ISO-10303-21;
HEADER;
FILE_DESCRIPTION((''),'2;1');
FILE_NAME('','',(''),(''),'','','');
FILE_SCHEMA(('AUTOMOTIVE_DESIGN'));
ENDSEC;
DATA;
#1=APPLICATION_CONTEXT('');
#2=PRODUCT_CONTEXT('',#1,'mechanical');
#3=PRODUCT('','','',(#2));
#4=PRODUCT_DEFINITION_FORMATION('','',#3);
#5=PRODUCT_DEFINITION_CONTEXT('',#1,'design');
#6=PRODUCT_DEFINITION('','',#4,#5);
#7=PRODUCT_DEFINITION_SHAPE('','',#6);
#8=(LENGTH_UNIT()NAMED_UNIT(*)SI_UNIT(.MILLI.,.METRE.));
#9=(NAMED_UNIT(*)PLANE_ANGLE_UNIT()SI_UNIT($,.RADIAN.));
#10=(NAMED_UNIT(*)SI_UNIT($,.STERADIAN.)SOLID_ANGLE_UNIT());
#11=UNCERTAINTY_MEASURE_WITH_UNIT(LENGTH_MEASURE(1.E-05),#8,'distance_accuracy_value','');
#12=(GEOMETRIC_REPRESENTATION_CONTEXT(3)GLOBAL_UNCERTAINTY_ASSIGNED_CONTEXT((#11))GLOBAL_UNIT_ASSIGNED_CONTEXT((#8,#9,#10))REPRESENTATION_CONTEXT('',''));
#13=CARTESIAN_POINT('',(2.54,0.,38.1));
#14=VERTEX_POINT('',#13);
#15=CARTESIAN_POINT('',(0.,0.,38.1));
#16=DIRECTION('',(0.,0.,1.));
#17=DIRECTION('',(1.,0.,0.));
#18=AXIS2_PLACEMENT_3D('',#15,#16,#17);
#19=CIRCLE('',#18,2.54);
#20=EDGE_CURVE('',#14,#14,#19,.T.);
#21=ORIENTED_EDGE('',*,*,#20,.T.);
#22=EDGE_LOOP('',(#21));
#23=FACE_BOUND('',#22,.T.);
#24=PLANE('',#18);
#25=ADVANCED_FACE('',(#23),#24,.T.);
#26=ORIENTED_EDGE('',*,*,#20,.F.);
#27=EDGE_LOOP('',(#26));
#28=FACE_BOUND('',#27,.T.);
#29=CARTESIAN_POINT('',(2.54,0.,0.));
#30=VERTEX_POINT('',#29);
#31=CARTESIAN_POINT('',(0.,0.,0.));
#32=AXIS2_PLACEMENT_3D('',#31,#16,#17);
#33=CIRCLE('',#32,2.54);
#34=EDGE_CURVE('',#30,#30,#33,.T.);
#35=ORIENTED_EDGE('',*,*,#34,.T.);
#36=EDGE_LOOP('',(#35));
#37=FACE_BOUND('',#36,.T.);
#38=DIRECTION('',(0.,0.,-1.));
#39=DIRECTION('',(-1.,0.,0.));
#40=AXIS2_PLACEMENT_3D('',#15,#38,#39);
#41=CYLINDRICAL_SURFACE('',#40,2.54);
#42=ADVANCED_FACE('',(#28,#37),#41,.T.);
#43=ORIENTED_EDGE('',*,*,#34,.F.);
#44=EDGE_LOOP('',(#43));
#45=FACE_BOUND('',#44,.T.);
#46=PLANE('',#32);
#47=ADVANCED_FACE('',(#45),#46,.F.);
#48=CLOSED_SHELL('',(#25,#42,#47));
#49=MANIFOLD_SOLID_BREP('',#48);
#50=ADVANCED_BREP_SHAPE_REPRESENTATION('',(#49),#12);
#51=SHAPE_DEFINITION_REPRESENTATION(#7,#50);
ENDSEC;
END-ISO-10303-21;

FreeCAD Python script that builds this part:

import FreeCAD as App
import Part
import Sketcher
Q = App.Units.Quantity

doc = App.newDocument("Part")
params = doc.addObject("Spreadsheet::Sheet", "Params")
for row, (alias, value) in enumerate([
    ("sketch1_diameter", "0.2 in"),
    ("pad1_length", "1.5 in"),
], start=1):
    params.set(f"A{row}", alias)
    params.set(f"B{row}", "=" + value)
    params.setAlias(f"B{row}", alias)

body = doc.addObject("PartDesign::Body", "Body")

sketch1 = body.newObject("Sketcher::SketchObject", "Sketch")
sketch1.AttachmentSupport = (doc.getObject("XY_Plane"), [""])
sketch1.MapMode = "FlatFace"
sketch1.addGeometry(Part.Circle(App.Vector(0, 0, 0), App.Vector(0, 0, 1), 2.54), False)
sketch1.addConstraint([
    Sketcher.Constraint("Coincident", 0, 3, -1, 1),
    Sketcher.Constraint("Diameter", 0, Q("0.2 in")),
])
sketch1.setExpression("Constraints[1]", "Params.sketch1_diameter")
pad1 = body.newObject("PartDesign::Pad", "Pad")
pad1.Profile = sketch1
pad1.setExpression("Length", "Params.pad1_length")

doc.recompute()
